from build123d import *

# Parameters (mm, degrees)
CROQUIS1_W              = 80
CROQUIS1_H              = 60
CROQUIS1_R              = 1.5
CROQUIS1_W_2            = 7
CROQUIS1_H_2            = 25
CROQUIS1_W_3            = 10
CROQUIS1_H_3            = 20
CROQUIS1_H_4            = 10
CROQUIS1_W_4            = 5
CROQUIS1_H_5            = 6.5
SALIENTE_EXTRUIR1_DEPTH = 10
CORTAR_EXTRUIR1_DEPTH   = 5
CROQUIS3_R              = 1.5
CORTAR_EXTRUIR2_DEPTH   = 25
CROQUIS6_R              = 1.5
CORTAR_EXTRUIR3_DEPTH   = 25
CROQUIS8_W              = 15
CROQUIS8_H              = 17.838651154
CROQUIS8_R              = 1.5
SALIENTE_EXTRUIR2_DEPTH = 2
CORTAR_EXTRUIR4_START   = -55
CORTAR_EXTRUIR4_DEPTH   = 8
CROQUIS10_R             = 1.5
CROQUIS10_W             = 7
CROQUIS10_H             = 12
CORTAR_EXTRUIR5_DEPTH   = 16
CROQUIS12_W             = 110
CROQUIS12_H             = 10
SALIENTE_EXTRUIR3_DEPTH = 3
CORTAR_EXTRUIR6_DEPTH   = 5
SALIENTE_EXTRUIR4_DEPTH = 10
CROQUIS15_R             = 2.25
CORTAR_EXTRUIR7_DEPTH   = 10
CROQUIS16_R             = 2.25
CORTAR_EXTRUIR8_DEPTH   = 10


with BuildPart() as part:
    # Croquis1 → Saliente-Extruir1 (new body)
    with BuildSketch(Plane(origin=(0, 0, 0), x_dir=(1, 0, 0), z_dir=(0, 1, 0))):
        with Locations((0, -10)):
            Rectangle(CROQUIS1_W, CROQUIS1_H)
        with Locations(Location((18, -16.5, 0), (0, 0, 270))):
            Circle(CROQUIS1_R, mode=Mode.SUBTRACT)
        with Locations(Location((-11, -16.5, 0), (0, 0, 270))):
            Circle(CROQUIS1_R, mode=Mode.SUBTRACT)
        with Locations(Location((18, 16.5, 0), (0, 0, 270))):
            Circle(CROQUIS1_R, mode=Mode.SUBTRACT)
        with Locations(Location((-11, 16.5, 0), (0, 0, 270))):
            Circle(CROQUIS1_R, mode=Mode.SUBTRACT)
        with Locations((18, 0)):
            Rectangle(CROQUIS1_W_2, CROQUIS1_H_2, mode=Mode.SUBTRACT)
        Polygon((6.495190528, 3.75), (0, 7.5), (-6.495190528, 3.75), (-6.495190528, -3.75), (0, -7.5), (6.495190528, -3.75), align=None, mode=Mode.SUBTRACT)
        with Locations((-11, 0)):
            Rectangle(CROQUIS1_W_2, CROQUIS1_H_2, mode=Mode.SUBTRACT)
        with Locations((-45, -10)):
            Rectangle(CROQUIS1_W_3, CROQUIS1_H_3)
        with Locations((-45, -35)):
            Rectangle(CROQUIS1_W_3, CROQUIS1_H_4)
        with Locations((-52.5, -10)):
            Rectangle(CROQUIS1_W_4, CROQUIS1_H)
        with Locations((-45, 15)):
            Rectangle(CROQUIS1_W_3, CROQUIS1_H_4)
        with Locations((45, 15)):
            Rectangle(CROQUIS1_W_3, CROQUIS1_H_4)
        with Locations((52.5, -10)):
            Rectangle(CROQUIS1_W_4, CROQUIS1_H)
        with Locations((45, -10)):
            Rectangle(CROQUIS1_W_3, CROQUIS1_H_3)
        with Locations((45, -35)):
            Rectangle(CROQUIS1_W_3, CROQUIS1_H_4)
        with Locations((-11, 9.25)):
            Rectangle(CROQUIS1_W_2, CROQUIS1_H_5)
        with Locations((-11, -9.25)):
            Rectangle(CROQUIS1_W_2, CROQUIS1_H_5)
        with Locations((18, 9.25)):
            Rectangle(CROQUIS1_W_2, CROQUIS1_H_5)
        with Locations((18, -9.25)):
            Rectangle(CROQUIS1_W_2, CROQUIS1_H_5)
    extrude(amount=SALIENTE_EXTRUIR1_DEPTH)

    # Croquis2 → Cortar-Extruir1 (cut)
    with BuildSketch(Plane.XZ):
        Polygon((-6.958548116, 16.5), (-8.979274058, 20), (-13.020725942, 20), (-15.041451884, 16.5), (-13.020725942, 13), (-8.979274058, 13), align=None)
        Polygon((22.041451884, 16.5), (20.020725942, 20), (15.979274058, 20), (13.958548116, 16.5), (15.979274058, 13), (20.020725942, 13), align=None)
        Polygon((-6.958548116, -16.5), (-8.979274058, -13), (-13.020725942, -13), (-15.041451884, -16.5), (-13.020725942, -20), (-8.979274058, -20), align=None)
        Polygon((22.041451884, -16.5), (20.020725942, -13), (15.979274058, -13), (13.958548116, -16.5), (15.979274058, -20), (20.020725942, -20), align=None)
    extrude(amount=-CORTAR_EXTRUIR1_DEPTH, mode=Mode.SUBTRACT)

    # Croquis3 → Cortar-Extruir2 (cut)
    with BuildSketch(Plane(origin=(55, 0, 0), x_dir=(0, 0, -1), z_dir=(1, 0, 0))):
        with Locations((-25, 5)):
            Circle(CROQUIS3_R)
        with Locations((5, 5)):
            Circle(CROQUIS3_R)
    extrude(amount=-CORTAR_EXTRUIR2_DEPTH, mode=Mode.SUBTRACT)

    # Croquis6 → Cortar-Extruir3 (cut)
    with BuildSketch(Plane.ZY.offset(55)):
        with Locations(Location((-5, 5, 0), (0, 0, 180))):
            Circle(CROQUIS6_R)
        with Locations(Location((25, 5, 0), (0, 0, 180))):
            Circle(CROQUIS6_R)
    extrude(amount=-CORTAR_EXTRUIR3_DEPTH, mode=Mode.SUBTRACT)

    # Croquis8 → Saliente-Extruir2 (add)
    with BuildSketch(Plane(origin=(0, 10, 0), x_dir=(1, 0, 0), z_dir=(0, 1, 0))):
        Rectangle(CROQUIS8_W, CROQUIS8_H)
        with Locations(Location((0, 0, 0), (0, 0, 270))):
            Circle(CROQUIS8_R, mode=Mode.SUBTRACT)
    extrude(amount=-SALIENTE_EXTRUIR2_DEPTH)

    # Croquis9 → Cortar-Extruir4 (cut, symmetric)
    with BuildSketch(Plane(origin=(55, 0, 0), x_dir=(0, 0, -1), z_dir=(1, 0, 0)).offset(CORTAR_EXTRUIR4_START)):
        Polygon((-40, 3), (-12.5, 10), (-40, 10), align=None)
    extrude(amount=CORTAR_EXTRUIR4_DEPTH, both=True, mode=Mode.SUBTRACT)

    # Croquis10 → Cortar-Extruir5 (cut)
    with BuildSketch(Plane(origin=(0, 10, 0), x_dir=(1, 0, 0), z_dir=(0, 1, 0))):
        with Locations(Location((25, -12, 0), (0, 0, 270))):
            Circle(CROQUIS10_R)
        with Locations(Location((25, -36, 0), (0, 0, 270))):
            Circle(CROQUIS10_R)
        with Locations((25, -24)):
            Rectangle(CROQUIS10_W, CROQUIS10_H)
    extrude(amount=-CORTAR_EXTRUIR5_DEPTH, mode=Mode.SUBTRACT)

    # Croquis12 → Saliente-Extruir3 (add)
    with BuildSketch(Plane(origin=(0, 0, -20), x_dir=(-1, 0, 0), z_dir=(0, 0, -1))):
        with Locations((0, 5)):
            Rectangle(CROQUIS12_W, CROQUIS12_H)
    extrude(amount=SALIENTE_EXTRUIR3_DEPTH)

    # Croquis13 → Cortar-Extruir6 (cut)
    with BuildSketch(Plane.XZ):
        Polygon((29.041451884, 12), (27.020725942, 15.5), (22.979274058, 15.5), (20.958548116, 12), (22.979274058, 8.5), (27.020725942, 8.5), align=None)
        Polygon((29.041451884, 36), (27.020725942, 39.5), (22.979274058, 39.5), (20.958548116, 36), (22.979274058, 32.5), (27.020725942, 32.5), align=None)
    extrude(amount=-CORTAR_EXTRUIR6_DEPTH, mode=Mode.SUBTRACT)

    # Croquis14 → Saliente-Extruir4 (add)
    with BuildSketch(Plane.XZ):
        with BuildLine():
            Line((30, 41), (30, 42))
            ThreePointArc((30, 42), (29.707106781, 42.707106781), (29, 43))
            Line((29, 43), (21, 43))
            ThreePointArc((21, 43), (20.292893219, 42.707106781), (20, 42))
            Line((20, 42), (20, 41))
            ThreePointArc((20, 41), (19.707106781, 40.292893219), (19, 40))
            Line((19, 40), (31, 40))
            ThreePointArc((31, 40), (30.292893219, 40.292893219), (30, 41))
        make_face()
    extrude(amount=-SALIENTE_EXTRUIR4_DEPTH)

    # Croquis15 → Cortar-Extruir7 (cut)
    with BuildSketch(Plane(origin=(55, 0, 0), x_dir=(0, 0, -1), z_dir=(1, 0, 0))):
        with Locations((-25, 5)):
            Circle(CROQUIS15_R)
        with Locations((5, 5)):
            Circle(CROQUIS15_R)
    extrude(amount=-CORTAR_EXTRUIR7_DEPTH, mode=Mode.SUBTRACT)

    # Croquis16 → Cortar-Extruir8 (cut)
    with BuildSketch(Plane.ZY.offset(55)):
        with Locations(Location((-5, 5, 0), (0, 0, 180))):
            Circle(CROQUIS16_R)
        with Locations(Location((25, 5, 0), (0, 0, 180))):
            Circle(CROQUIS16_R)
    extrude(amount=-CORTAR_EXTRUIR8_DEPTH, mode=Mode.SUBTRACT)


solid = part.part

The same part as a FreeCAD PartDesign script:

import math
import FreeCAD as App
import Part
import Sketcher
Q = App.Units.Quantity

doc = App.newDocument("Part")
body = doc.addObject("PartDesign::Body", "Body")

# Sketch on XZ plane
sketch1 = body.newObject("Sketcher::SketchObject", "Sketch")
sketch1.AttachmentSupport = (doc.getObject("XZ_Plane"), [""])
sketch1.MapMode = "FlatFace"
sketch1.addGeometry([
    Part.LineSegment(App.Vector(55, 40, 0), App.Vector(55, -20, 0)),  # 0
    Part.LineSegment(App.Vector(55, -20, 0), App.Vector(-55, -20, 0)),  # 1
    Part.LineSegment(App.Vector(-55, -20, 0), App.Vector(-55, 40, 0)),  # 2
    Part.LineSegment(App.Vector(-55, 40, 0), App.Vector(55, 40, 0)),  # 3
    Part.LineSegment(App.Vector(-40, 20, 0), App.Vector(-40, 30, 0)),  # 4
    Part.LineSegment(App.Vector(-40, 30, 0), App.Vector(-50, 30, 0)),  # 5
    Part.LineSegment(App.Vector(-50, 30, 0), App.Vector(-50, 20, 0)),  # 6
    Part.LineSegment(App.Vector(-50, 20, 0), App.Vector(-40, 20, 0)),  # 7
    Part.LineSegment(App.Vector(40, 30, 0), App.Vector(40, 20, 0)),  # 8
    Part.LineSegment(App.Vector(40, 20, 0), App.Vector(50, 20, 0)),  # 9
    Part.LineSegment(App.Vector(50, 20, 0), App.Vector(50, 30, 0)),  # 10
    Part.LineSegment(App.Vector(50, 30, 0), App.Vector(40, 30, 0)),  # 11
    Part.LineSegment(App.Vector(40, 0, 0), App.Vector(40, -10, 0)),  # 12
    Part.LineSegment(App.Vector(40, -10, 0), App.Vector(50, -10, 0)),  # 13
    Part.LineSegment(App.Vector(50, -10, 0), App.Vector(50, 0, 0)),  # 14
    Part.LineSegment(App.Vector(50, 0, 0), App.Vector(40, 0, 0)),  # 15
    Part.LineSegment(App.Vector(-40, -10, 0), App.Vector(-40, 0, 0)),  # 16
    Part.LineSegment(App.Vector(-40, 0, 0), App.Vector(-50, 0, 0)),  # 17
    Part.LineSegment(App.Vector(-50, 0, 0), App.Vector(-50, -10, 0)),  # 18
    Part.LineSegment(App.Vector(-50, -10, 0), App.Vector(-40, -10, 0)),  # 19
    Part.Circle(App.Vector(-11, 16.5, 0), App.Vector(0, 0, 1), 1.5),  # 20
    Part.Circle(App.Vector(18, 16.5, 0), App.Vector(0, 0, 1), 1.5),  # 21
    Part.LineSegment(App.Vector(-14.5, 6, 0), App.Vector(-14.5, -6, 0)),  # 22
    Part.LineSegment(App.Vector(-14.5, -6, 0), App.Vector(-7.5, -6, 0)),  # 23
    Part.LineSegment(App.Vector(-7.5, -6, 0), App.Vector(-7.5, 6, 0)),  # 24
    Part.LineSegment(App.Vector(-7.5, 6, 0), App.Vector(-14.5, 6, 0)),  # 25
    Part.LineSegment(App.Vector(0, -7.5, 0), App.Vector(6.5, -3.8, 0)),  # 26
    Part.LineSegment(App.Vector(6.5, -3.8, 0), App.Vector(6.5, 3.8, 0)),  # 27
    Part.LineSegment(App.Vector(6.5, 3.8, 0), App.Vector(0, 7.5, 0)),  # 28
    Part.LineSegment(App.Vector(0, 7.5, 0), App.Vector(-6.5, 3.8, 0)),  # 29
    Part.LineSegment(App.Vector(-6.5, 3.8, 0), App.Vector(-6.5, -3.8, 0)),  # 30
    Part.LineSegment(App.Vector(-6.5, -3.8, 0), App.Vector(0, -7.5, 0)),  # 31
    Part.Circle(App.Vector(-11, -16.5, 0), App.Vector(0, 0, 1), 1.5),  # 32
    Part.LineSegment(App.Vector(14.5, 6, 0), App.Vector(14.5, -6, 0)),  # 33
    Part.LineSegment(App.Vector(14.5, -6, 0), App.Vector(21.5, -6, 0)),  # 34
    Part.LineSegment(App.Vector(21.5, -6, 0), App.Vector(21.5, 6, 0)),  # 35
    Part.LineSegment(App.Vector(21.5, 6, 0), App.Vector(14.5, 6, 0)),  # 36
    Part.Circle(App.Vector(18, -16.5, 0), App.Vector(0, 0, 1), 1.5),  # 37
], False)
sketch1.addConstraint([
    Sketcher.Constraint("Coincident", 0, 2, 1, 1),
    Sketcher.Constraint("Coincident", 1, 2, 2, 1),
    Sketcher.Constraint("Coincident", 2, 2, 3, 1),
    Sketcher.Constraint("Coincident", 3, 2, 0, 1),
    Sketcher.Constraint("Coincident", 4, 2, 5, 1),
    Sketcher.Constraint("Coincident", 5, 2, 6, 1),
    Sketcher.Constraint("Coincident", 6, 2, 7, 1),
    Sketcher.Constraint("Coincident", 7, 2, 4, 1),
    Sketcher.Constraint("Coincident", 8, 2, 9, 1),
    Sketcher.Constraint("Coincident", 9, 2, 10, 1),
    Sketcher.Constraint("Coincident", 10, 2, 11, 1),
    Sketcher.Constraint("Coincident", 11, 2, 8, 1),
    Sketcher.Constraint("Coincident", 12, 2, 13, 1),
    Sketcher.Constraint("Coincident", 13, 2, 14, 1),
    Sketcher.Constraint("Coincident", 14, 2, 15, 1),
    Sketcher.Constraint("Coincident", 15, 2, 12, 1),
    Sketcher.Constraint("Coincident", 16, 2, 17, 1),
    Sketcher.Constraint("Coincident", 17, 2, 18, 1),
    Sketcher.Constraint("Coincident", 18, 2, 19, 1),
    Sketcher.Constraint("Coincident", 19, 2, 16, 1),
    Sketcher.Constraint("Coincident", 22, 2, 23, 1),
    Sketcher.Constraint("Coincident", 23, 2, 24, 1),
    Sketcher.Constraint("Coincident", 24, 2, 25, 1),
    Sketcher.Constraint("Coincident", 25, 2, 22, 1),
    Sketcher.Constraint("Coincident", 26, 2, 27, 1),
    Sketcher.Constraint("Coincident", 27, 2, 28, 1),
    Sketcher.Constraint("Coincident", 28, 2, 29, 1),
    Sketcher.Constraint("Coincident", 29, 2, 30, 1),
    Sketcher.Constraint("Coincident", 30, 2, 31, 1),
    Sketcher.Constraint("Coincident", 31, 2, 26, 1),
    Sketcher.Constraint("Coincident", 33, 2, 34, 1),
    Sketcher.Constraint("Coincident", 34, 2, 35, 1),
    Sketcher.Constraint("Coincident", 35, 2, 36, 1),
    Sketcher.Constraint("Coincident", 36, 2, 33, 1),
    Sketcher.Constraint("Vertical", 0),
    Sketcher.Constraint("Horizontal", 1),
    Sketcher.Constraint("Vertical", 2),
    Sketcher.Constraint("Horizontal", 3),
    Sketcher.Constraint("Vertical", 4),
    Sketcher.Constraint("Horizontal", 5),
    Sketcher.Constraint("Vertical", 6),
    Sketcher.Constraint("Horizontal", 7),
    Sketcher.Constraint("Vertical", 8),
    Sketcher.Constraint("Horizontal", 9),
    Sketcher.Constraint("Vertical", 10),
    Sketcher.Constraint("Horizontal", 11),
    Sketcher.Constraint("Vertical", 12),
    Sketcher.Constraint("Horizontal", 13),
    Sketcher.Constraint("Vertical", 14),
    Sketcher.Constraint("Horizontal", 15),
    Sketcher.Constraint("Vertical", 16),
    Sketcher.Constraint("Horizontal", 17),
    Sketcher.Constraint("Vertical", 18),
    Sketcher.Constraint("Horizontal", 19),
    Sketcher.Constraint("Vertical", 22),
    Sketcher.Constraint("Horizontal", 23),
    Sketcher.Constraint("Vertical", 24),
    Sketcher.Constraint("Horizontal", 25),
    Sketcher.Constraint("Vertical", 27),
    Sketcher.Constraint("Vertical", 30),
    Sketcher.Constraint("Vertical", 33),
    Sketcher.Constraint("Horizontal", 34),
    Sketcher.Constraint("Vertical", 35),
    Sketcher.Constraint("Horizontal", 36),
    Sketcher.Constraint("Equal", 20, 21),
    Sketcher.Constraint("Equal", 21, 32),
    Sketcher.Constraint("Equal", 32, 37),
    Sketcher.Constraint("Symmetric", 15, 2, 16, 2, -1, 1),
    Sketcher.Constraint("Symmetric", 26, 2, 29, 2, -1, 1),
    Sketcher.Constraint("Symmetric", 28, 2, 31, 2, -1, 1),
    Sketcher.Constraint("Symmetric", 25, 2, 33, 2, -1, 1),
    Sketcher.Constraint("Symmetric", 7, 2, 8, 2, -2),
    Sketcher.Constraint("Symmetric", 5, 2, 10, 2, -2),
    Sketcher.Constraint("Symmetric", 14, 2, 17, 2, -2),
    Sketcher.Constraint("Symmetric", 20, 3, 32, 3, -1),
    Sketcher.Constraint("Symmetric", 21, 3, 37, 3, -1),
    Sketcher.Constraint("PointOnObject", 28, 2, -2),
    Sketcher.Constraint("Parallel", 28, 31),
    Sketcher.Constraint("Horizontal", 20, 3, 21, 3),
    Sketcher.Constraint("Horizontal", 13, 2, 18, 2),
    Sketcher.Constraint("Horizontal", 27, 2, 29, 2),
    Sketcher.Constraint("Horizontal", 23, 2, 33, 2),
    Sketcher.Constraint("Horizontal", 25, 2, 35, 2),
    Sketcher.Constraint("Vertical", 11, 2, 12, 2),
    Sketcher.Constraint("Vertical", 10, 2, 13, 2),
    Sketcher.Constraint("Equal", 25, 34),
    Sketcher.Constraint("Equal", 19, 4),
    Sketcher.Constraint("Equal", 10, 12),
    Sketcher.Constraint("Diameter", 20, Q("3 mm")),
    Sketcher.Constraint("DistanceX", 1, 2, 1, 1, Q("110 mm")),
    Sketcher.Constraint("DistanceX", 5, 2, 5, 1, Q("10 mm")),
    Sketcher.Constraint("DistanceX", 23, 1, 23, 2, Q("7 mm")),
    Sketcher.Constraint("DistanceY", 0, 2, 0, 1, Q("60 mm")),
    Sketcher.Constraint("DistanceY", 22, 2, 22, 1, Q("12 mm")),
    Sketcher.Constraint("Angle", 26, Q("30 deg")),
    Sketcher.Constraint("DistanceY", 27, 1, 27, 2, Q("7.5 mm")),
    Sketcher.Constraint("DistanceX", 20, 3, -1, 1, Q("11 mm")),
    Sketcher.Constraint("DistanceX", -1, 1, 21, 3, Q("18 mm")),
    Sketcher.Constraint("DistanceX", -1, 1, 0, 2, Q("55 mm")),
    Sketcher.Constraint("DistanceY", 0, 2, -1, 1, Q("20 mm")),
    Sketcher.Constraint("DistanceX", 4, 2, -1, 1, Q("40 mm")),
    Sketcher.Constraint("DistanceY", -1, 1, 4, 2, Q("30 mm")),
    Sketcher.Constraint("DistanceY", 32, 3, 20, 3, Q("33 mm")),
    Sketcher.Constraint("DistanceY", 28, 2, 20, 3, Q("9 mm")),
    Sketcher.Constraint("DistanceX", 22, 2, -1, 1, Q("14.5 mm")),
])
pad1 = body.newObject("PartDesign::Pad", "Pad")
pad1.Profile = sketch1
pad1.Length = 10
pad1.Reversed = True

# Sketch on XZ plane
sketch2 = body.newObject("Sketcher::SketchObject", "Sketch001")
sketch2.AttachmentSupport = (doc.getObject("XZ_Plane"), [""])
sketch2.MapMode = "FlatFace"
sketch2.addGeometry([
    Part.LineSegment(App.Vector(-7, 16.5, 0), App.Vector(-9, 20, 0)),  # 0
    Part.LineSegment(App.Vector(-9, 20, 0), App.Vector(-13, 20, 0)),  # 1
    Part.LineSegment(App.Vector(-13, 20, 0), App.Vector(-15, 16.5, 0)),  # 2
    Part.LineSegment(App.Vector(-15, 16.5, 0), App.Vector(-13, 13, 0)),  # 3
    Part.LineSegment(App.Vector(-13, 13, 0), App.Vector(-9, 13, 0)),  # 4
    Part.LineSegment(App.Vector(-9, 13, 0), App.Vector(-7, 16.5, 0)),  # 5
    Part.LineSegment(App.Vector(22, 16.5, 0), App.Vector(20, 20, 0)),  # 6
    Part.LineSegment(App.Vector(20, 20, 0), App.Vector(16, 20, 0)),  # 7
    Part.LineSegment(App.Vector(16, 20, 0), App.Vector(14, 16.5, 0)),  # 8
    Part.LineSegment(App.Vector(14, 16.5, 0), App.Vector(16, 13, 0)),  # 9
    Part.LineSegment(App.Vector(16, 13, 0), App.Vector(20, 13, 0)),  # 10
    Part.LineSegment(App.Vector(20, 13, 0), App.Vector(22, 16.5, 0)),  # 11
    Part.LineSegment(App.Vector(-7, -16.5, 0), App.Vector(-9, -13, 0)),  # 12
    Part.LineSegment(App.Vector(-9, -13, 0), App.Vector(-13, -13, 0)),  # 13
    Part.LineSegment(App.Vector(-13, -13, 0), App.Vector(-15, -16.5, 0)),  # 14
    Part.LineSegment(App.Vector(-15, -16.5, 0), App.Vector(-13, -20, 0)),  # 15
    Part.LineSegment(App.Vector(-13, -20, 0), App.Vector(-9, -20, 0)),  # 16
    Part.LineSegment(App.Vector(-9, -20, 0), App.Vector(-7, -16.5, 0)),  # 17
    Part.LineSegment(App.Vector(22, -16.5, 0), App.Vector(20, -13, 0)),  # 18
    Part.LineSegment(App.Vector(20, -13, 0), App.Vector(16, -13, 0)),  # 19
    Part.LineSegment(App.Vector(16, -13, 0), App.Vector(14, -16.5, 0)),  # 20
    Part.LineSegment(App.Vector(14, -16.5, 0), App.Vector(16, -20, 0)),  # 21
    Part.LineSegment(App.Vector(16, -20, 0), App.Vector(20, -20, 0)),  # 22
    Part.LineSegment(App.Vector(20, -20, 0), App.Vector(22, -16.5, 0)),  # 23
], False)
sketch2.addConstraint([
    Sketcher.Constraint("Coincident", 0, 2, 1, 1),
    Sketcher.Constraint("Coincident", 1, 2, 2, 1),
    Sketcher.Constraint("Coincident", 2, 2, 3, 1),
    Sketcher.Constraint("Coincident", 3, 2, 4, 1),
    Sketcher.Constraint("Coincident", 4, 2, 5, 1),
    Sketcher.Constraint("Coincident", 5, 2, 0, 1),
    Sketcher.Constraint("Coincident", 6, 2, 7, 1),
    Sketcher.Constraint("Coincident", 7, 2, 8, 1),
    Sketcher.Constraint("Coincident", 8, 2, 9, 1),
    Sketcher.Constraint("Coincident", 9, 2, 10, 1),
    Sketcher.Constraint("Coincident", 10, 2, 11, 1),
    Sketcher.Constraint("Coincident", 11, 2, 6, 1),
    Sketcher.Constraint("Coincident", 12, 2, 13, 1),
    Sketcher.Constraint("Coincident", 13, 2, 14, 1),
    Sketcher.Constraint("Coincident", 14, 2, 15, 1),
    Sketcher.Constraint("Coincident", 15, 2, 16, 1),
    Sketcher.Constraint("Coincident", 16, 2, 17, 1),
    Sketcher.Constraint("Coincident", 17, 2, 12, 1),
    Sketcher.Constraint("Coincident", 18, 2, 19, 1),
    Sketcher.Constraint("Coincident", 19, 2, 20, 1),
    Sketcher.Constraint("Coincident", 20, 2, 21, 1),
    Sketcher.Constraint("Coincident", 21, 2, 22, 1),
    Sketcher.Constraint("Coincident", 22, 2, 23, 1),
    Sketcher.Constraint("Coincident", 23, 2, 18, 1),
    Sketcher.Constraint("Horizontal", 1),
    Sketcher.Constraint("Horizontal", 4),
    Sketcher.Constraint("Horizontal", 7),
    Sketcher.Constraint("Horizontal", 10),
    Sketcher.Constraint("Horizontal", 13),
    Sketcher.Constraint("Horizontal", 16),
    Sketcher.Constraint("Horizontal", 19),
    Sketcher.Constraint("Horizontal", 22),
    Sketcher.Constraint("Symmetric", 4, 2, 12, 2, -1),
    Sketcher.Constraint("Symmetric", 2, 2, 14, 2, -1),
    Sketcher.Constraint("Symmetric", 1, 2, 15, 2, -1),
    Sketcher.Constraint("Symmetric", 5, 2, 17, 2, -1),
    Sketcher.Constraint("Symmetric", 10, 2, 18, 2, -1),
    Sketcher.Constraint("Symmetric", 8, 2, 20, 2, -1),
    Sketcher.Constraint("Symmetric", 7, 2, 21, 2, -1),
    Sketcher.Constraint("Symmetric", 11, 2, 23, 2, -1),
    Sketcher.Constraint("Parallel", 0, 3),
    Sketcher.Constraint("Parallel", 2, 5),
    Sketcher.Constraint("Parallel", 3, 6),
    Sketcher.Constraint("Parallel", 5, 8),
    Sketcher.Constraint("Parallel", 6, 9),
    Sketcher.Constraint("Parallel", 8, 11),
    Sketcher.Constraint("Parallel", 9, 12),
    Sketcher.Constraint("Parallel", 11, 14),
    Sketcher.Constraint("Parallel", 14, 17),
    Sketcher.Constraint("Parallel", 17, 20),
    Sketcher.Constraint("Parallel", 20, 23),
    Sketcher.Constraint("Horizontal", 2, 2, 5, 2),
    Sketcher.Constraint("Horizontal", 1, 2, 6, 2),
    Sketcher.Constraint("Horizontal", 5, 2, 8, 2),
    Sketcher.Constraint("Horizontal", 4, 2, 9, 2),
    Sketcher.Constraint("Horizontal", 8, 2, 11, 2),
    Sketcher.Constraint("Vertical", 1, 2, 3, 2),
    Sketcher.Constraint("Equal", 4, 7),
    Sketcher.Constraint("Angle", 0, Q("120 deg")),
    Sketcher.Constraint("DistanceY", -1, 1, 0, 2, Q("20 mm")),
    Sketcher.Constraint("DistanceY", -1, 1, 3, 2, Q("13 mm")),
    Sketcher.Constraint("DistanceX", 0, 2, 6, 2, Q("29 mm")),
    Sketcher.Constraint("DistanceX", 1, 2, 1, 1, Q("4.041452 mm")),
    Sketcher.Constraint("DistanceX", 2, 2, -1, 1, Q("15.041452 mm")),
])
pocket1 = body.newObject("PartDesign::Pocket", "Pocket")
pocket1.Profile = sketch2
pocket1.Length = 5

# Sketch on YZ plane
sketch3 = body.newObject("Sketcher::SketchObject", "Sketch002")
sketch3.AttachmentSupport = (doc.getObject("YZ_Plane"), [""])
sketch3.MapMode = "FlatFace"
sketch3.AttachmentOffset = App.Placement(App.Vector(0, 0, 55), App.Rotation())
sketch3.addGeometry([
    Part.Circle(App.Vector(5, 25, 0), App.Vector(0, 0, 1), 1.5),
    Part.Circle(App.Vector(5, -5, 0), App.Vector(0, 0, 1), 1.5),
], False)
sketch3.addConstraint([
    Sketcher.Constraint("Equal", 0, 1),
    Sketcher.Constraint("Vertical", 0, 3, 1, 3),
    Sketcher.Constraint("Diameter", 0, Q("3 mm")),
    Sketcher.Constraint("DistanceX", -1, 1, 0, 3, Q("5 mm")),
    Sketcher.Constraint("DistanceY", -1, 1, 0, 3, Q("25 mm")),
    Sketcher.Constraint("DistanceY", 1, 3, -1, 1, Q("5 mm")),
])
pocket2 = body.newObject("PartDesign::Pocket", "Pocket001")
pocket2.Profile = sketch3
pocket2.Length = 25

# Sketch on YZ plane
sketch4 = body.newObject("Sketcher::SketchObject", "Sketch003")
sketch4.AttachmentSupport = (doc.getObject("YZ_Plane"), [""])
sketch4.MapMode = "FlatFace"
sketch4.AttachmentOffset = App.Placement(App.Vector(0, 0, -55), App.Rotation())
sketch4.addGeometry([
    Part.Circle(App.Vector(5, -5, 0), App.Vector(0, 0, 1), 1.5),
    Part.Circle(App.Vector(5, 25, 0), App.Vector(0, 0, 1), 1.5),
], False)
sketch4.addConstraint([
    Sketcher.Constraint("Equal", 0, 1),
    Sketcher.Constraint("Vertical", 0, 3, 1, 3),
    Sketcher.Constraint("Diameter", 0, Q("3 mm")),
    Sketcher.Constraint("DistanceX", -1, 1, 0, 3, Q("5 mm")),
    Sketcher.Constraint("DistanceY", 0, 3, -1, 1, Q("5 mm")),
    Sketcher.Constraint("DistanceY", -1, 1, 1, 3, Q("25 mm")),
])
pocket3 = body.newObject("PartDesign::Pocket", "Pocket002")
pocket3.Profile = sketch4
pocket3.Length = 25
pocket3.Reversed = True

# Sketch on XZ plane
sketch5 = body.newObject("Sketcher::SketchObject", "Sketch004")
sketch5.AttachmentSupport = (doc.getObject("XZ_Plane"), [""])
sketch5.MapMode = "FlatFace"
sketch5.AttachmentOffset = App.Placement(App.Vector(0, 0, -10), App.Rotation())
sketch5.addGeometry([
    Part.LineSegment(App.Vector(-7.5, -8.9, 0), App.Vector(-7.5, 8.9, 0)),  # 0
    Part.LineSegment(App.Vector(-7.5, 8.9, 0), App.Vector(7.5, 8.9, 0)),  # 1
    Part.LineSegment(App.Vector(7.5, 8.9, 0), App.Vector(7.5, -8.9, 0)),  # 2
    Part.LineSegment(App.Vector(7.5, -8.9, 0), App.Vector(-7.5, -8.9, 0)),  # 3
    Part.Circle(App.Vector(0, 0, 0), App.Vector(0, 0, 1), 1.5),  # 4
], False)
sketch5.addConstraint([
    Sketcher.Constraint("Coincident", 0, 2, 1, 1),
    Sketcher.Constraint("Coincident", 1, 2, 2, 1),
    Sketcher.Constraint("Coincident", 2, 2, 3, 1),
    Sketcher.Constraint("Coincident", 3, 2, 0, 1),
    Sketcher.Constraint("Vertical", 0),
    Sketcher.Constraint("Horizontal", 1),
    Sketcher.Constraint("Vertical", 2),
    Sketcher.Constraint("Horizontal", 3),
    Sketcher.Constraint("Coincident", 4, 3, -1, 1),
    Sketcher.Constraint("Symmetric", 0, 2, 2, 2, -1, 1),
    Sketcher.Constraint("Diameter", 4, Q("3 mm")),
    Sketcher.Constraint("DistanceX", 1, 1, 1, 2, Q("15 mm")),
    Sketcher.Constraint("DistanceY", 0, 1, 0, 2, Q("17.838651 mm")),
])
pad2 = body.newObject("PartDesign::Pad", "Pad001")
pad2.Profile = sketch5
pad2.Length = 2

# Sketch on YZ plane
sketch6 = body.newObject("Sketcher::SketchObject", "Sketch005")
sketch6.AttachmentSupport = (doc.getObject("YZ_Plane"), [""])
sketch6.MapMode = "FlatFace"
sketch6.addGeometry([
    Part.LineSegment(App.Vector(3, 40, 0), App.Vector(10, 12, 0)),
    Part.LineSegment(App.Vector(10, 12, 0), App.Vector(10, 40, 0)),
    Part.LineSegment(App.Vector(10, 40, 0), App.Vector(3, 40, 0)),
], False)
sketch6.addConstraint([
    Sketcher.Constraint("Coincident", 0, 2, 1, 1),
    Sketcher.Constraint("Coincident", 1, 2, 2, 1),
    Sketcher.Constraint("Coincident", 2, 2, 0, 1),
    Sketcher.Constraint("Vertical", 1),
    Sketcher.Constraint("Horizontal", 2),
    Sketcher.Constraint("DistanceX", 2, 2, 2, 1, Q("7 mm")),
    Sketcher.Constraint("DistanceY", 1, 1, 1, 2, Q("27.5 mm")),
    Sketcher.Constraint("DistanceX", -1, 1, 0, 2, Q("10 mm")),
    Sketcher.Constraint("DistanceY", -1, 1, 1, 2, Q("40 mm")),
])
pocket4 = body.newObject("PartDesign::Pocket", "Pocket003")
pocket4.Profile = sketch6
pocket4.Length = 16
pocket4.Midplane = True

# Sketch on XZ plane
sketch7 = body.newObject("Sketcher::SketchObject", "Sketch006")
sketch7.AttachmentSupport = (doc.getObject("XZ_Plane"), [""])
sketch7.MapMode = "FlatFace"
sketch7.AttachmentOffset = App.Placement(App.Vector(0, 0, -10), App.Rotation())
sketch7.addGeometry([
    Part.Circle(App.Vector(25, 12, 0), App.Vector(0, 0, 1), 1.5),  # 0
    Part.Circle(App.Vector(25, 36, 0), App.Vector(0, 0, 1), 1.5),  # 1
    Part.LineSegment(App.Vector(21.5, 18, 0), App.Vector(21.5, 30, 0)),  # 2
    Part.LineSegment(App.Vector(21.5, 30, 0), App.Vector(28.5, 30, 0)),  # 3
    Part.LineSegment(App.Vector(28.5, 30, 0), App.Vector(28.5, 18, 0)),  # 4
    Part.LineSegment(App.Vector(28.5, 18, 0), App.Vector(21.5, 18, 0)),  # 5
], False)
sketch7.addConstraint([
    Sketcher.Constraint("Coincident", 2, 2, 3, 1),
    Sketcher.Constraint("Coincident", 3, 2, 4, 1),
    Sketcher.Constraint("Coincident", 4, 2, 5, 1),
    Sketcher.Constraint("Coincident", 5, 2, 2, 1),
    Sketcher.Constraint("Vertical", 2),
    Sketcher.Constraint("Horizontal", 3),
    Sketcher.Constraint("Vertical", 4),
    Sketcher.Constraint("Horizontal", 5),
    Sketcher.Constraint("Equal", 0, 1),
    Sketcher.Constraint("Vertical", 0, 3, 1, 3),
    Sketcher.Constraint("Diameter", 0, Q("3 mm")),
    Sketcher.Constraint("DistanceX", 3, 1, 3, 2, Q("7 mm")),
    Sketcher.Constraint("DistanceY", 2, 1, 2, 2, Q("12 mm")),
    Sketcher.Constraint("DistanceX", -1, 1, 0, 3, Q("25 mm")),
    Sketcher.Constraint("DistanceY", -1, 1, 0, 3, Q("12 mm")),
    Sketcher.Constraint("DistanceY", -1, 1, 1, 3, Q("36 mm")),
    Sketcher.Constraint("DistanceY", -1, 1, 2, 2, Q("30 mm")),
    Sketcher.Constraint("DistanceX", -1, 1, 2, 2, Q("21.5 mm")),
])
pocket5 = body.newObject("PartDesign::Pocket", "Pocket004")
pocket5.Profile = sketch7
pocket5.Length = 16
pocket5.Reversed = True

# Sketch on XY plane
sketch8 = body.newObject("Sketcher::SketchObject", "Sketch007")
sketch8.AttachmentSupport = (doc.getObject("XY_Plane"), [""])
sketch8.MapMode = "FlatFace"
sketch8.AttachmentOffset = App.Placement(App.Vector(0, 0, -20), App.Rotation())
sketch8.addGeometry([
    Part.LineSegment(App.Vector(55, 10, 0), App.Vector(55, 0, 0)),
    Part.LineSegment(App.Vector(55, 0, 0), App.Vector(-55, 0, 0)),
    Part.LineSegment(App.Vector(-55, 0, 0), App.Vector(-55, 10, 0)),
    Part.LineSegment(App.Vector(-55, 10, 0), App.Vector(55, 10, 0)),
], False)
sketch8.addConstraint([
    Sketcher.Constraint("Coincident", 0, 2, 1, 1),
    Sketcher.Constraint("Coincident", 1, 2, 2, 1),
    Sketcher.Constraint("Coincident", 2, 2, 3, 1),
    Sketcher.Constraint("Coincident", 3, 2, 0, 1),
    Sketcher.Constraint("Vertical", 0),
    Sketcher.Constraint("Horizontal", 1),
    Sketcher.Constraint("Vertical", 2),
    Sketcher.Constraint("Horizontal", 3),
    Sketcher.Constraint("Symmetric", 0, 2, 1, 2, -1, 1),
    Sketcher.Constraint("DistanceX", 1, 2, 1, 1, Q("110 mm")),
    Sketcher.Constraint("DistanceY", 0, 2, 0, 1, Q("10 mm")),
])
pad3 = body.newObject("PartDesign::Pad", "Pad002")
pad3.Profile = sketch8
pad3.Length = 3
pad3.Reversed = True

# Sketch on XZ plane
sketch9 = body.newObject("Sketcher::SketchObject", "Sketch008")
sketch9.AttachmentSupport = (doc.getObject("XZ_Plane"), [""])
sketch9.MapMode = "FlatFace"
sketch9.addGeometry([
    Part.LineSegment(App.Vector(29, 12, 0), App.Vector(27, 15.5, 0)),  # 0
    Part.LineSegment(App.Vector(27, 15.5, 0), App.Vector(23, 15.5, 0)),  # 1
    Part.LineSegment(App.Vector(23, 15.5, 0), App.Vector(21, 12, 0)),  # 2
    Part.LineSegment(App.Vector(21, 12, 0), App.Vector(23, 8.5, 0)),  # 3
    Part.LineSegment(App.Vector(23, 8.5, 0), App.Vector(27, 8.5, 0)),  # 4
    Part.LineSegment(App.Vector(27, 8.5, 0), App.Vector(29, 12, 0)),  # 5
    Part.LineSegment(App.Vector(29, 36, 0), App.Vector(27, 39.5, 0)),  # 6
    Part.LineSegment(App.Vector(27, 39.5, 0), App.Vector(23, 39.5, 0)),  # 7
    Part.LineSegment(App.Vector(23, 39.5, 0), App.Vector(21, 36, 0)),  # 8
    Part.LineSegment(App.Vector(21, 36, 0), App.Vector(23, 32.5, 0)),  # 9
    Part.LineSegment(App.Vector(23, 32.5, 0), App.Vector(27, 32.5, 0)),  # 10
    Part.LineSegment(App.Vector(27, 32.5, 0), App.Vector(29, 36, 0)),  # 11
], False)
sketch9.addConstraint([
    Sketcher.Constraint("Coincident", 0, 2, 1, 1),
    Sketcher.Constraint("Coincident", 1, 2, 2, 1),
    Sketcher.Constraint("Coincident", 2, 2, 3, 1),
    Sketcher.Constraint("Coincident", 3, 2, 4, 1),
    Sketcher.Constraint("Coincident", 4, 2, 5, 1),
    Sketcher.Constraint("Coincident", 5, 2, 0, 1),
    Sketcher.Constraint("Coincident", 6, 2, 7, 1),
    Sketcher.Constraint("Coincident", 7, 2, 8, 1),
    Sketcher.Constraint("Coincident", 8, 2, 9, 1),
    Sketcher.Constraint("Coincident", 9, 2, 10, 1),
    Sketcher.Constraint("Coincident", 10, 2, 11, 1),
    Sketcher.Constraint("Coincident", 11, 2, 6, 1),
    Sketcher.Constraint("Horizontal", 1),
    Sketcher.Constraint("Horizontal", 4),
    Sketcher.Constraint("Horizontal", 7),
    Sketcher.Constraint("Horizontal", 10),
    Sketcher.Constraint("Parallel", 0, 3),
    Sketcher.Constraint("Parallel", 2, 5),
    Sketcher.Constraint("Parallel", 3, 6),
    Sketcher.Constraint("Parallel", 5, 8),
    Sketcher.Constraint("Parallel", 6, 9),
    Sketcher.Constraint("Parallel", 8, 11),
    Sketcher.Constraint("Horizontal", 2, 2, 5, 2),
    Sketcher.Constraint("Horizontal", 8, 2, 11, 2),
    Sketcher.Constraint("Vertical", 1, 2, 3, 2),
    Sketcher.Constraint("Vertical", 0, 2, 4, 2),
    Sketcher.Constraint("Vertical", 4, 2, 6, 2),
    Sketcher.Constraint("Vertical", 3, 2, 7, 2),
    Sketcher.Constraint("Vertical", 2, 2, 8, 2),
    Sketcher.Constraint("Vertical", 7, 2, 9, 2),
    Sketcher.Constraint("Angle", 0, Q("120 deg")),
    Sketcher.Constraint("DistanceY", -1, 1, 2, 2, Q("12 mm")),
    Sketcher.Constraint("DistanceY", -1, 1, 8, 2, Q("36 mm")),
    Sketcher.Constraint("DistanceY", 3, 2, 1, 2, Q("7 mm")),
    Sketcher.Constraint("DistanceX", 1, 2, 1, 1, Q("4.041452 mm")),
    Sketcher.Constraint("DistanceX", -1, 1, 2, 2, Q("20.958548 mm")),
])
pocket6 = body.newObject("PartDesign::Pocket", "Pocket005")
pocket6.Profile = sketch9
pocket6.Length = 5

# Sketch on XZ plane
sketch10 = body.newObject("Sketcher::SketchObject", "Sketch009")
sketch10.AttachmentSupport = (doc.getObject("XZ_Plane"), [""])
sketch10.MapMode = "FlatFace"
sketch10.addGeometry([
    Part.LineSegment(App.Vector(30, 41, 0), App.Vector(30, 42, 0)),  # 0
    Part.ArcOfCircle(Part.Circle(App.Vector(29, 42, 0), App.Vector(0, 0, 1), 1), math.radians(0), math.radians(90)),  # 1
    Part.LineSegment(App.Vector(29, 43, 0), App.Vector(21, 43, 0)),  # 2
    Part.ArcOfCircle(Part.Circle(App.Vector(21, 42, 0), App.Vector(0, 0, 1), 1), math.radians(90), math.radians(180)),  # 3
    Part.LineSegment(App.Vector(20, 42, 0), App.Vector(20, 41, 0)),  # 4
    Part.ArcOfCircle(Part.Circle(App.Vector(19, 41, 0), App.Vector(0, 0, 1), 1), math.radians(-90), math.radians(0)),  # 5
    Part.LineSegment(App.Vector(19, 40, 0), App.Vector(31, 40, 0)),  # 6
    Part.ArcOfCircle(Part.Circle(App.Vector(31, 41, 0), App.Vector(0, 0, 1), 1), math.radians(-180), math.radians(-90)),  # 7
], False)
sketch10.addConstraint([
    Sketcher.Constraint("Tangent", 0, 2, 1, 1),
    Sketcher.Constraint("Tangent", 1, 2, 2, 1),
    Sketcher.Constraint("Tangent", 2, 2, 3, 1),
    Sketcher.Constraint("Tangent", 3, 2, 4, 1),
    Sketcher.Constraint("Tangent", 4, 2, 5, 2),
    Sketcher.Constraint("Tangent", 5, 1, 6, 1),
    Sketcher.Constraint("Tangent", 6, 2, 7, 2),
    Sketcher.Constraint("Tangent", 7, 1, 0, 1),
    Sketcher.Constraint("Vertical", 0),
    Sketcher.Constraint("Horizontal", 2),
    Sketcher.Constraint("Vertical", 4),
    Sketcher.Constraint("Horizontal", 6),
    Sketcher.Constraint("Equal", 1, 3),
    Sketcher.Constraint("Equal", 3, 5),
    Sketcher.Constraint("Equal", 5, 7),
    Sketcher.Constraint("Radius", 1, Q("1 mm")),
    Sketcher.Constraint("DistanceX", 2, 2, 2, 1, Q("8 mm")),
    Sketcher.Constraint("DistanceY", 0, 1, 0, 2, Q("1 mm")),
    Sketcher.Constraint("DistanceX", -1, 1, 1, 3, Q("29 mm")),
    Sketcher.Constraint("DistanceY", -1, 1, 1, 3, Q("42 mm")),
])
pad4 = body.newObject("PartDesign::Pad", "Pad003")
pad4.Profile = sketch10
pad4.Length = 10
pad4.Reversed = True

# Sketch on YZ plane
sketch11 = body.newObject("Sketcher::SketchObject", "Sketch010")
sketch11.AttachmentSupport = (doc.getObject("YZ_Plane"), [""])
sketch11.MapMode = "FlatFace"
sketch11.AttachmentOffset = App.Placement(App.Vector(0, 0, 55), App.Rotation())
sketch11.addGeometry([
    Part.Circle(App.Vector(5, 25, 0), App.Vector(0, 0, 1), 2.2),
    Part.Circle(App.Vector(5, -5, 0), App.Vector(0, 0, 1), 2.2),
], False)
sketch11.addConstraint([
    Sketcher.Constraint("Equal", 0, 1),
    Sketcher.Constraint("Vertical", 0, 3, 1, 3),
    Sketcher.Constraint("Diameter", 0, Q("4.5 mm")),
    Sketcher.Constraint("DistanceX", -1, 1, 0, 3, Q("5 mm")),
    Sketcher.Constraint("DistanceY", -1, 1, 0, 3, Q("25 mm")),
    Sketcher.Constraint("DistanceY", 1, 3, -1, 1, Q("5 mm")),
])
pocket7 = body.newObject("PartDesign::Pocket", "Pocket006")
pocket7.Profile = sketch11
pocket7.Length = 10

# Sketch on YZ plane
sketch12 = body.newObject("Sketcher::SketchObject", "Sketch011")
sketch12.AttachmentSupport = (doc.getObject("YZ_Plane"), [""])
sketch12.MapMode = "FlatFace"
sketch12.AttachmentOffset = App.Placement(App.Vector(0, 0, -55), App.Rotation())
sketch12.addGeometry([
    Part.Circle(App.Vector(5, -5, 0), App.Vector(0, 0, 1), 2.2),
    Part.Circle(App.Vector(5, 25, 0), App.Vector(0, 0, 1), 2.2),
], False)
sketch12.addConstraint([
    Sketcher.Constraint("Equal", 0, 1),
    Sketcher.Constraint("Vertical", 0, 3, 1, 3),
    Sketcher.Constraint("Diameter", 0, Q("4.5 mm")),
    Sketcher.Constraint("DistanceX", -1, 1, 0, 3, Q("5 mm")),
    Sketcher.Constraint("DistanceY", 0, 3, -1, 1, Q("5 mm")),
    Sketcher.Constraint("DistanceY", -1, 1, 1, 3, Q("25 mm")),
])
pocket8 = body.newObject("PartDesign::Pocket", "Pocket007")
pocket8.Profile = sketch12
pocket8.Length = 10
pocket8.Reversed = True

doc.recompute()
